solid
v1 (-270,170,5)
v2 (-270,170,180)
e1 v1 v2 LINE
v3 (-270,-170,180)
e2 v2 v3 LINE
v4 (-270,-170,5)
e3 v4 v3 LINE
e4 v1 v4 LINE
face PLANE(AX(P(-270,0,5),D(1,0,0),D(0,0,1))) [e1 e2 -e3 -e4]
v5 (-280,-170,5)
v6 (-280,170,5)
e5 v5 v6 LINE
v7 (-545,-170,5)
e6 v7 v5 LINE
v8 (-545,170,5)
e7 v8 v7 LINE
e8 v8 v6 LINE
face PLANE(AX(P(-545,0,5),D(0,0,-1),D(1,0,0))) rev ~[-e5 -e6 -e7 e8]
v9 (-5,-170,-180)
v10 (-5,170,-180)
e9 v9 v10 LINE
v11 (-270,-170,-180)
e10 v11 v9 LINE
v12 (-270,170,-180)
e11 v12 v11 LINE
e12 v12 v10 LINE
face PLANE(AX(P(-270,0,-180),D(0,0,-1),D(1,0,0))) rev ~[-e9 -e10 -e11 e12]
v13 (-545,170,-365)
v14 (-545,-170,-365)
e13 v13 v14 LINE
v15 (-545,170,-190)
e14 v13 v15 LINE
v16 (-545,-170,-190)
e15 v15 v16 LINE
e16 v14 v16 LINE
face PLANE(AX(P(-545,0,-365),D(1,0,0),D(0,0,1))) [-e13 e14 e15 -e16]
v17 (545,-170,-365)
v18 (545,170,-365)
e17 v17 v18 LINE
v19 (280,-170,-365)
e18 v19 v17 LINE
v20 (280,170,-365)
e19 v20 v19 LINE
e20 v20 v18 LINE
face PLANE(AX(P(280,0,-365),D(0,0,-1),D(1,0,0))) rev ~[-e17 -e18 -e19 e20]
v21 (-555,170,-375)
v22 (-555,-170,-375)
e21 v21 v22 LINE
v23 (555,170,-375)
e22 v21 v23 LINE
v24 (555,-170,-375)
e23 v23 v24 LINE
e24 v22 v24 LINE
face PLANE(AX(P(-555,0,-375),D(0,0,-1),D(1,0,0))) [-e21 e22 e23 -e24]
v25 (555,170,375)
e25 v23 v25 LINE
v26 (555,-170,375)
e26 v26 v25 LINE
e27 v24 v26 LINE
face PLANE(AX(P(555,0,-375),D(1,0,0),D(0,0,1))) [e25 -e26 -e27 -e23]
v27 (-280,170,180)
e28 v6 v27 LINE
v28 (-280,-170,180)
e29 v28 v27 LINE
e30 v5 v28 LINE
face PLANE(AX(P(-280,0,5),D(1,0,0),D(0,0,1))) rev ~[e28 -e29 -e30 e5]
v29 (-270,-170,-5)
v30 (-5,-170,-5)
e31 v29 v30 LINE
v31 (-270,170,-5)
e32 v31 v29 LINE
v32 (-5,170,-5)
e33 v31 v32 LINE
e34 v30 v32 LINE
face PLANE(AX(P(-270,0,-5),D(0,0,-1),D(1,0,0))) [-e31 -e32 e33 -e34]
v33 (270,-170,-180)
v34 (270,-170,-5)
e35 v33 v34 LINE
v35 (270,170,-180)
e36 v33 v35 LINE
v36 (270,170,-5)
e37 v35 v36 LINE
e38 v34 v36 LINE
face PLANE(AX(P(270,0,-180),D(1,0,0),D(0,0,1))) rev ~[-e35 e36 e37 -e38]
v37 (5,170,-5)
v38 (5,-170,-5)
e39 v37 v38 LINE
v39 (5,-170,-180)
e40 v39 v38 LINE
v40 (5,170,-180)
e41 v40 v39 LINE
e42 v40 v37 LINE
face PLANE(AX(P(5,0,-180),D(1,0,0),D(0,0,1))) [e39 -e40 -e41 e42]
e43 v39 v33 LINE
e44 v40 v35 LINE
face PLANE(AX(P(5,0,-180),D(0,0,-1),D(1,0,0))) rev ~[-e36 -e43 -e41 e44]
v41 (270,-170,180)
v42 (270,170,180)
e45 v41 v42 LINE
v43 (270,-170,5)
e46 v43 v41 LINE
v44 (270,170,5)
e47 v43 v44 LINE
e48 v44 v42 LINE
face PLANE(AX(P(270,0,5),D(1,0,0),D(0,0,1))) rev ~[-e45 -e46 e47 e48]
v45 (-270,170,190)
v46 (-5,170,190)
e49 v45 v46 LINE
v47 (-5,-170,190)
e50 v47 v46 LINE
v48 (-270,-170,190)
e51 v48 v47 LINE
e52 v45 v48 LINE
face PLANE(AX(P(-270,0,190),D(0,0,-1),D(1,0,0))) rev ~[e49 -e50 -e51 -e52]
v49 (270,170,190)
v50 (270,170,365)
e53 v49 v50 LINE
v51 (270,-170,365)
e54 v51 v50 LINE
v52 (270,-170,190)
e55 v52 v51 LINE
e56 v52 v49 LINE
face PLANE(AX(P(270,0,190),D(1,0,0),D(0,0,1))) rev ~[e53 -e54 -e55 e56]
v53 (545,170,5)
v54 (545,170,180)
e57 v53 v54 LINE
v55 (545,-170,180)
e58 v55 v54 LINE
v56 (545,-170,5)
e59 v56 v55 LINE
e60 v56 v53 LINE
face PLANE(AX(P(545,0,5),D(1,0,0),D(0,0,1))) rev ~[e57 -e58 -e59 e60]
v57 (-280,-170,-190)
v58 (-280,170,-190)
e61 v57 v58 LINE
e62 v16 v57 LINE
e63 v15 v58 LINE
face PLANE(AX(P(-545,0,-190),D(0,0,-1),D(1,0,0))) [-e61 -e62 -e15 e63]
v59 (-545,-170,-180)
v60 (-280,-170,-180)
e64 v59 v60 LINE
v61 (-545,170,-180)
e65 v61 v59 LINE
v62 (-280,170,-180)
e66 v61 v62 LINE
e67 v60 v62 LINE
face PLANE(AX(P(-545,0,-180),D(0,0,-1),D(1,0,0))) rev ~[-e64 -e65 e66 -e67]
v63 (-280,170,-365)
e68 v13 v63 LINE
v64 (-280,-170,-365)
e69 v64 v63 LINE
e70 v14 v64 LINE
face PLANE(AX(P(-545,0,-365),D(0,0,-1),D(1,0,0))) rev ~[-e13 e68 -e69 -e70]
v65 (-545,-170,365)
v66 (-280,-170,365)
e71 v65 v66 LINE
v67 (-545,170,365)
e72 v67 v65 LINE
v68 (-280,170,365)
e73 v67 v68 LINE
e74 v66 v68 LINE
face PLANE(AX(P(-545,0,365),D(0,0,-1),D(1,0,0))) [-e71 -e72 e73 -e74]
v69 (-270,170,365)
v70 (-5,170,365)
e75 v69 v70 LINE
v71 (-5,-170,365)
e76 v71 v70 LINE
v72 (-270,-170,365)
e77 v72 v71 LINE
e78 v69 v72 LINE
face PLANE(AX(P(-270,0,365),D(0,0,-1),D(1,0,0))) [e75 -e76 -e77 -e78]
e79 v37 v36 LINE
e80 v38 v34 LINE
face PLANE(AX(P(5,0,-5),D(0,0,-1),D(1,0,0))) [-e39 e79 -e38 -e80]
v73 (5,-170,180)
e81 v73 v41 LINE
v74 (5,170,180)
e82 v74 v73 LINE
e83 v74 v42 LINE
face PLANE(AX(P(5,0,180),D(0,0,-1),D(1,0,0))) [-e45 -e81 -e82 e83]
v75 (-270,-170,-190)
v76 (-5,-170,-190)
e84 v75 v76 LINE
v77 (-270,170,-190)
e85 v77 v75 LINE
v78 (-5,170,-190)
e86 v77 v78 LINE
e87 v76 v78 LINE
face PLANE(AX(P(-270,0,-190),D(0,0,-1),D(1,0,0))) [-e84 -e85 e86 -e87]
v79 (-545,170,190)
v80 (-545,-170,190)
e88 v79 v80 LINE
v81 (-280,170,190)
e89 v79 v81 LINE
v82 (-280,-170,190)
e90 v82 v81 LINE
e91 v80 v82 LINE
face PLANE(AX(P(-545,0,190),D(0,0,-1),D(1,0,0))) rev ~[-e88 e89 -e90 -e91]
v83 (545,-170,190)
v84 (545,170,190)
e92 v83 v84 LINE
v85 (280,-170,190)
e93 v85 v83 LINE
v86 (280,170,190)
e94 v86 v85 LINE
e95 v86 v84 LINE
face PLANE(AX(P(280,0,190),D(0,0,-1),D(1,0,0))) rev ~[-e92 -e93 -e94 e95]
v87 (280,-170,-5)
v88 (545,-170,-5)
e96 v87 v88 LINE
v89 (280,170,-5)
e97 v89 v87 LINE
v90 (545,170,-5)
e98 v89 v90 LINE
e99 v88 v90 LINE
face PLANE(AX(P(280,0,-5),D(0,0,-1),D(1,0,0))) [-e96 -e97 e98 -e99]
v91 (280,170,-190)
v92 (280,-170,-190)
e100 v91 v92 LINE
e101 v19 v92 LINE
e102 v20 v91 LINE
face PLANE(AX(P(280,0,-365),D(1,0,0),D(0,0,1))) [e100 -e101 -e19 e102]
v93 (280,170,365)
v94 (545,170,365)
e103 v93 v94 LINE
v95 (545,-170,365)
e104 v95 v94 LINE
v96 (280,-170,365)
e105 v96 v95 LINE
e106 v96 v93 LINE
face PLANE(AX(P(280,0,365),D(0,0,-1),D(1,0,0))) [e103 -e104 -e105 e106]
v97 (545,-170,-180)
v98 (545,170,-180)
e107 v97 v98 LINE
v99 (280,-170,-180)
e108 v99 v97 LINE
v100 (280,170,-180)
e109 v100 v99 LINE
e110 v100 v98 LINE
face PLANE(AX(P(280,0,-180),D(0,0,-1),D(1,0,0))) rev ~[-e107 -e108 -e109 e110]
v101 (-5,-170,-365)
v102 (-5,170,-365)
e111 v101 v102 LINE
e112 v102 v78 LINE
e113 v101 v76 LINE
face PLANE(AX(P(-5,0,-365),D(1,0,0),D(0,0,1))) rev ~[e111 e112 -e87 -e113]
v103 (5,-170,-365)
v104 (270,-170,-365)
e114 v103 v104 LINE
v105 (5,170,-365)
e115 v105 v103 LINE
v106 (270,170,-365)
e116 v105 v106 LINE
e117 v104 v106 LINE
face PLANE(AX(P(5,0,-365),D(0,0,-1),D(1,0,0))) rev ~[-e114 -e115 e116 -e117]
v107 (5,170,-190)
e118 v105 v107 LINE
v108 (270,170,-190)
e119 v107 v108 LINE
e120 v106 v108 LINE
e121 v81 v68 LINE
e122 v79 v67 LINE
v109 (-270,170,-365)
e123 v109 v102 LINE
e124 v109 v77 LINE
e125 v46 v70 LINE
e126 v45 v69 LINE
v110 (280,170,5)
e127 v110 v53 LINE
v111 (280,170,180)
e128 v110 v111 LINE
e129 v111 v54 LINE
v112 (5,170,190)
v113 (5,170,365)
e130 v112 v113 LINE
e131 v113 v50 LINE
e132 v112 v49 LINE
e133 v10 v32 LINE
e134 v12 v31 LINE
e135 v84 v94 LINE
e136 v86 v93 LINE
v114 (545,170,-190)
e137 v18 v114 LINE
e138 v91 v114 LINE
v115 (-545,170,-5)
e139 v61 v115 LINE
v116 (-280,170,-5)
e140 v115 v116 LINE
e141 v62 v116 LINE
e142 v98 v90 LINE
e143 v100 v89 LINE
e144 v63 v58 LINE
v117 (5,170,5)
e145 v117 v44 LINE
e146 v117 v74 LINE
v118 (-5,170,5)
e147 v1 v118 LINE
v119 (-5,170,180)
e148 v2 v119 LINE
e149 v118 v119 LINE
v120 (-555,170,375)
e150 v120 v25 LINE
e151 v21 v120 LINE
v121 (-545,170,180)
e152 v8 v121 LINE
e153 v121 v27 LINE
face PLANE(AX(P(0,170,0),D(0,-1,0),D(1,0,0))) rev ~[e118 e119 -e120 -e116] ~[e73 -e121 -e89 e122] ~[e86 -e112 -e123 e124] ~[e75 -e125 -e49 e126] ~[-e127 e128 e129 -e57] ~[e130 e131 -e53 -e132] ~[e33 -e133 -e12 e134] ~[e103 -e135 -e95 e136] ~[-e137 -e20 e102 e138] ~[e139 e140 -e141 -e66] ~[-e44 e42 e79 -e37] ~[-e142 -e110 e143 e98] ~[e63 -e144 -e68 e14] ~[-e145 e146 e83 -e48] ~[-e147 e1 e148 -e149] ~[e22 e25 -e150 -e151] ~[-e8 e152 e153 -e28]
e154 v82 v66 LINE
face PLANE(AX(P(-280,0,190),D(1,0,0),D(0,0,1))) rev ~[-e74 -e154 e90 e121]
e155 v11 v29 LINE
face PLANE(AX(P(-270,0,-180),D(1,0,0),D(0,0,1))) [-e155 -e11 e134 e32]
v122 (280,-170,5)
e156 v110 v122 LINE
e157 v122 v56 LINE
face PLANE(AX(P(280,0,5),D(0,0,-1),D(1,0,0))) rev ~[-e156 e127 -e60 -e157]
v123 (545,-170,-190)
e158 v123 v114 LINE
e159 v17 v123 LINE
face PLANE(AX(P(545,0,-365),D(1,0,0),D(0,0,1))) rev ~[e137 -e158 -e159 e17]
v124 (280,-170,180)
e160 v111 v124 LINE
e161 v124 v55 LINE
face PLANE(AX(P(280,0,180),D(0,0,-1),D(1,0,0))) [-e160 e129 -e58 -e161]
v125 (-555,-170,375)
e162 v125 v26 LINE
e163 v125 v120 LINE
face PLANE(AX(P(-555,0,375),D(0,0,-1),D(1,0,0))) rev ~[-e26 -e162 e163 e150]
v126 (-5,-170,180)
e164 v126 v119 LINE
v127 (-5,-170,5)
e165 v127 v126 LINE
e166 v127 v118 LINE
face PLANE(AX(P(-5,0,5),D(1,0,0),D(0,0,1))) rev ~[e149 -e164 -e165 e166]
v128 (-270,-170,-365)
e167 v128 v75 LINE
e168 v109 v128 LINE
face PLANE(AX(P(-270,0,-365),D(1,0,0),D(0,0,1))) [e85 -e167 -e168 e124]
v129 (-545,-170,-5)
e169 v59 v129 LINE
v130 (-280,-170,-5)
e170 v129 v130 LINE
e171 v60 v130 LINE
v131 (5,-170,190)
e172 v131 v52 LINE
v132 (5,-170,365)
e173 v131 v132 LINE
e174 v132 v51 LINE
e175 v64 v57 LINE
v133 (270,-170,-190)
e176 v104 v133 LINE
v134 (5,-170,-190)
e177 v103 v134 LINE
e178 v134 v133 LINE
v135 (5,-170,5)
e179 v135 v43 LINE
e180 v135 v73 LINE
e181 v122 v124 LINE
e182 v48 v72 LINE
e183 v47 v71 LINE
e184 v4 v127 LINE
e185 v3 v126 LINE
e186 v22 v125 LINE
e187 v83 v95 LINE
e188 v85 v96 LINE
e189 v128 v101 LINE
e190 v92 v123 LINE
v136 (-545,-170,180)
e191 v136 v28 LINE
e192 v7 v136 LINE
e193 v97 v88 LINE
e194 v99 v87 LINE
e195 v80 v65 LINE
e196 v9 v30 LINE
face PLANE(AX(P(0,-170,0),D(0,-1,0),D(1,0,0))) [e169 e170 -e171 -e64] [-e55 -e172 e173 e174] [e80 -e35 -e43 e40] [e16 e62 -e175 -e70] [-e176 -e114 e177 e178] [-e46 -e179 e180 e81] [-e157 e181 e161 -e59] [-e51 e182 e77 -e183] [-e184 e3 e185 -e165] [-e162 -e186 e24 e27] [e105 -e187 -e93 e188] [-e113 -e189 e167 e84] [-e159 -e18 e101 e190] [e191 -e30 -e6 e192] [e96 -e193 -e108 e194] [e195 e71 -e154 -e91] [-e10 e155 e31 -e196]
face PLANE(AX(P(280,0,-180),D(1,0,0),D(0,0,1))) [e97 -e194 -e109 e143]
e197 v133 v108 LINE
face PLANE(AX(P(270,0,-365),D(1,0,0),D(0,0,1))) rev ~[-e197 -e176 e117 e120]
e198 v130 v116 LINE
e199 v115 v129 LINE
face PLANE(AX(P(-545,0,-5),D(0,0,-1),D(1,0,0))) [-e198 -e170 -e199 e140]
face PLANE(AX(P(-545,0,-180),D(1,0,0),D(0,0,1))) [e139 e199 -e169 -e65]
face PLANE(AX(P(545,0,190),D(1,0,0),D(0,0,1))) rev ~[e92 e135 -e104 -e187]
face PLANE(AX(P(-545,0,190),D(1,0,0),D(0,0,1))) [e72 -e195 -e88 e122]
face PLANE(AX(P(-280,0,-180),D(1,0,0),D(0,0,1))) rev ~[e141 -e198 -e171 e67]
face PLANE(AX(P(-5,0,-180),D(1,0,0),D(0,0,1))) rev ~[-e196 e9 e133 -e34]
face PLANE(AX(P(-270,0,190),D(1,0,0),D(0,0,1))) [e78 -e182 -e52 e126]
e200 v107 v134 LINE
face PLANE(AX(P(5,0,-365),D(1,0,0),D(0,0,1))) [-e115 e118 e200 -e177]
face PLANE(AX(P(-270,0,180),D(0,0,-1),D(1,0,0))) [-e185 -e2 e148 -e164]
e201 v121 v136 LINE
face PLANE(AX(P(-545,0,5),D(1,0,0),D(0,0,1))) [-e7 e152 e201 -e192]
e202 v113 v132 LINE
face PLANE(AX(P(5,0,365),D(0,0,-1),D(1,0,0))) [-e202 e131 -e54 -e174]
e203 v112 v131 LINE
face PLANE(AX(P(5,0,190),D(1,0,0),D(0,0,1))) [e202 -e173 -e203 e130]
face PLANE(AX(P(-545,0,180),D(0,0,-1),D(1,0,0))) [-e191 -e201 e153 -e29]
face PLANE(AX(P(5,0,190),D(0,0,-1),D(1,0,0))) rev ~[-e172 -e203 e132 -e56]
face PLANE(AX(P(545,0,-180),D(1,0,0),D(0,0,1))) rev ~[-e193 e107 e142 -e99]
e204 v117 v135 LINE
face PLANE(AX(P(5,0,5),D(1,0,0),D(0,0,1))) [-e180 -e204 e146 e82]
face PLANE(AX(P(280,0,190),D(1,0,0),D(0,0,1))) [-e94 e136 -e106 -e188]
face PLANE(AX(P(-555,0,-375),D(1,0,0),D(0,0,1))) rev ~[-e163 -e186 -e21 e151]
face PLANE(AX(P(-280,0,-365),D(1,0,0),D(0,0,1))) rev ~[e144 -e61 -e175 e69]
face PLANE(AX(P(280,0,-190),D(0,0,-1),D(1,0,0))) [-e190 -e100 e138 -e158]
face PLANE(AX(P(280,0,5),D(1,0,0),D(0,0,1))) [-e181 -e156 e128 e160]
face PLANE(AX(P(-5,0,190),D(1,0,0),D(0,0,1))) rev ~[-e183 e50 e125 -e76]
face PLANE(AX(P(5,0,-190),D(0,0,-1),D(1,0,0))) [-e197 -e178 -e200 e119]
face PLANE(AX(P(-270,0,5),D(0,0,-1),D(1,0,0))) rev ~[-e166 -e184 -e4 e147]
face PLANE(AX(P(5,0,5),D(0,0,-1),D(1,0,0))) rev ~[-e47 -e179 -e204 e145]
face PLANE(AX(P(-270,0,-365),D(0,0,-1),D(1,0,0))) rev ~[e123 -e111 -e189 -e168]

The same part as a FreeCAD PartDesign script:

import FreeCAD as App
import Part
import Sketcher

V = App.Vector
Q = App.Units.Quantity


def add_polygon(sketch, points):
    """Adds a closed chain of lines whose ends are joined by coincident constraints."""
    first, n = sketch.GeometryCount, len(points)
    for a, b in zip(points, points[1:] + points[:1]):
        sketch.addGeometry(Part.LineSegment(App.Vector(*a, 0), App.Vector(*b, 0)), False)
    for i in range(n):
        sketch.addConstraint(Sketcher.Constraint("Coincident", first + i, 2, first + (i + 1) % n, 1))

doc = App.newDocument("Part")
params = doc.addObject("Spreadsheet::Sheet", "Params")
for row, (alias, value) in enumerate([
    ("sketch1_width", "1110 mm"),
    ("sketch1_width2", "265 mm"),
    ("sketch1_height", "750 mm"),
    ("sketch1_height2", "175 mm"),
    ("pad1_length", "340 mm"),
], start=1):
    params.set(f"A{row}", alias)
    params.set(f"B{row}", "=" + value)
    params.setAlias(f"B{row}", alias)

body = doc.addObject("PartDesign::Body", "Body")

sketch1 = doc.addObject("Sketcher::SketchObject", "Sketch")
body.addObject(sketch1)
sketch1.AttachmentSupport = (doc.XZ_Plane, [""])
sketch1.MapMode = "FlatFace"
add_polygon(sketch1, [(-555, 375), (-555, -375), (555, -375), (555, 375)])
add_polygon(sketch1, [(-280, -365), (-545, -365), (-545, -190), (-280, -190)])
add_polygon(sketch1, [(-5, -365), (-270, -365), (-270, -190), (-5, -190)])
add_polygon(sketch1, [(-280, -180), (-545, -180), (-545, -5), (-280, -5)])
add_polygon(sketch1, [(-5, -180), (-270, -180), (-270, -5), (-5, -5)])
add_polygon(sketch1, [(270, -365), (5, -365), (5, -190), (270, -190)])
add_polygon(sketch1, [(545, -365), (280, -365), (280, -190), (545, -190)])
add_polygon(sketch1, [(270, -180), (5, -180), (5, -5), (270, -5)])
add_polygon(sketch1, [(545, -180), (280, -180), (280, -5), (545, -5)])
add_polygon(sketch1, [(-280, 5), (-545, 5), (-545, 180), (-280, 180)])
add_polygon(sketch1, [(-5, 5), (-270, 5), (-270, 180), (-5, 180)])
add_polygon(sketch1, [(-280, 190), (-545, 190), (-545, 365), (-280, 365)])
add_polygon(sketch1, [(-5, 190), (-270, 190), (-270, 365), (-5, 365)])
add_polygon(sketch1, [(270, 5), (5, 5), (5, 180), (270, 180)])
add_polygon(sketch1, [(545, 5), (280, 5), (280, 180), (545, 180)])
add_polygon(sketch1, [(270, 190), (5, 190), (5, 365), (270, 365)])
add_polygon(sketch1, [(545, 190), (280, 190), (280, 365), (545, 365)])
sketch1.addConstraint([
    Sketcher.Constraint("Vertical", 0),
    Sketcher.Constraint("Horizontal", 1),
    Sketcher.Constraint("Vertical", 2),
    Sketcher.Constraint("Horizontal", 3),
    Sketcher.Constraint("Horizontal", 4),
    Sketcher.Constraint("Vertical", 5),
    Sketcher.Constraint("Horizontal", 6),
    Sketcher.Constraint("Vertical", 7),
    Sketcher.Constraint("Horizontal", 8),
    Sketcher.Constraint("Vertical", 9),
    Sketcher.Constraint("Horizontal", 10),
    Sketcher.Constraint("Vertical", 11),
    Sketcher.Constraint("Horizontal", 12),
    Sketcher.Constraint("Vertical", 13),
    Sketcher.Constraint("Horizontal", 14),
    Sketcher.Constraint("Vertical", 15),
    Sketcher.Constraint("Horizontal", 16),
    Sketcher.Constraint("Vertical", 17),
    Sketcher.Constraint("Horizontal", 18),
    Sketcher.Constraint("Vertical", 19),
    Sketcher.Constraint("Horizontal", 20),
    Sketcher.Constraint("Vertical", 21),
    Sketcher.Constraint("Horizontal", 22),
    Sketcher.Constraint("Vertical", 23),
    Sketcher.Constraint("Horizontal", 24),
    Sketcher.Constraint("Vertical", 25),
    Sketcher.Constraint("Horizontal", 26),
    Sketcher.Constraint("Vertical", 27),
    Sketcher.Constraint("Horizontal", 28),
    Sketcher.Constraint("Vertical", 29),
    Sketcher.Constraint("Horizontal", 30),
    Sketcher.Constraint("Vertical", 31),
    Sketcher.Constraint("Horizontal", 32),
    Sketcher.Constraint("Vertical", 33),
    Sketcher.Constraint("Horizontal", 34),
    Sketcher.Constraint("Vertical", 35),
    Sketcher.Constraint("Horizontal", 36),
    Sketcher.Constraint("Vertical", 37),
    Sketcher.Constraint("Horizontal", 38),
    Sketcher.Constraint("Vertical", 39),
    Sketcher.Constraint("Horizontal", 40),
    Sketcher.Constraint("Vertical", 41),
    Sketcher.Constraint("Horizontal", 42),
    Sketcher.Constraint("Vertical", 43),
    Sketcher.Constraint("Horizontal", 44),
    Sketcher.Constraint("Vertical", 45),
    Sketcher.Constraint("Horizontal", 46),
    Sketcher.Constraint("Vertical", 47),
    Sketcher.Constraint("Horizontal", 48),
    Sketcher.Constraint("Vertical", 49),
    Sketcher.Constraint("Horizontal", 50),
    Sketcher.Constraint("Vertical", 51),
    Sketcher.Constraint("Horizontal", 52),
    Sketcher.Constraint("Vertical", 53),
    Sketcher.Constraint("Horizontal", 54),
    Sketcher.Constraint("Vertical", 55),
    Sketcher.Constraint("Horizontal", 56),
    Sketcher.Constraint("Vertical", 57),
    Sketcher.Constraint("Horizontal", 58),
    Sketcher.Constraint("Vertical", 59),
    Sketcher.Constraint("Horizontal", 60),
    Sketcher.Constraint("Vertical", 61),
    Sketcher.Constraint("Horizontal", 62),
    Sketcher.Constraint("Vertical", 63),
    Sketcher.Constraint("Horizontal", 64),
    Sketcher.Constraint("Vertical", 65),
    Sketcher.Constraint("Horizontal", 66),
    Sketcher.Constraint("Vertical", 67),
    Sketcher.Constraint("Symmetric", 0, 2, 2, 2, -1, 1),
    Sketcher.Constraint("Symmetric", 34, 2, 36, 2, -1, 1),
    Sketcher.Constraint("Symmetric", 32, 2, 38, 2, -1, 1),
    Sketcher.Constraint("Symmetric", 30, 2, 40, 2, -1, 1),
    Sketcher.Constraint("Symmetric", 28, 2, 42, 2, -1, 1),
    Sketcher.Constraint("Symmetric", 26, 2, 44, 2, -1, 1),
    Sketcher.Constraint("Symmetric", 24, 2, 46, 2, -1, 1),
    Sketcher.Constraint("Symmetric", 22, 2, 48, 2, -1, 1),
    Sketcher.Constraint("Symmetric", 20, 2, 50, 2, -1, 1),
    Sketcher.Constraint("Symmetric", 18, 2, 52, 2, -1, 1),
    Sketcher.Constraint("Symmetric", 16, 2, 54, 2, -1, 1),
    Sketcher.Constraint("Symmetric", 14, 2, 56, 2, -1, 1),
    Sketcher.Constraint("Symmetric", 12, 2, 58, 2, -1, 1),
    Sketcher.Constraint("Symmetric", 10, 2, 60, 2, -1, 1),
    Sketcher.Constraint("Symmetric", 8, 2, 62, 2, -1, 1),
    Sketcher.Constraint("Symmetric", 6, 2, 64, 2, -1, 1),
    Sketcher.Constraint("Symmetric", 4, 2, 66, 2, -1, 1),
    Sketcher.Constraint("Symmetric", 11, 2, 20, 2, -2),
    Sketcher.Constraint("Symmetric", 9, 2, 22, 2, -2),
    Sketcher.Constraint("Symmetric", 7, 2, 24, 2, -2),
    Sketcher.Constraint("Symmetric", 5, 2, 26, 2, -2),
    Sketcher.Constraint("Symmetric", 19, 2, 28, 2, -2),
    Sketcher.Constraint("Symmetric", 17, 2, 30, 2, -2),
    Sketcher.Constraint("Symmetric", 15, 2, 32, 2, -2),
    Sketcher.Constraint("Symmetric", 13, 2, 34, 2, -2),
    Sketcher.Constraint("Horizontal", 7, 2, 8, 2),
    Sketcher.Constraint("Horizontal", 6, 2, 9, 2),
    Sketcher.Constraint("Horizontal", 15, 2, 16, 2),
    Sketcher.Constraint("Horizontal", 14, 2, 17, 2),
    Sketcher.Constraint("Vertical", 5, 2, 12, 2),
    Sketcher.Constraint("Vertical", 7, 2, 14, 2),
    Sketcher.Constraint("Vertical", 9, 2, 16, 2),
    Sketcher.Constraint("Vertical", 11, 2, 18, 2),
    Sketcher.Constraint("Equal", 6, 8),
    Sketcher.Constraint("Equal", 11, 13),
    Sketcher.Constraint("DistanceX", 1, 1, 1, 2, Q("1110 mm")),
    Sketcher.Constraint("DistanceX", 4, 2, 4, 1, Q("265 mm")),
    Sketcher.Constraint("DistanceY", 0, 2, 0, 1, Q("750 mm")),
    Sketcher.Constraint("DistanceY", 5, 1, 5, 2, Q("175 mm")),
    Sketcher.Constraint("DistanceX", 4, 2, -1, 1, Q("545 mm")),
    Sketcher.Constraint("DistanceY", 4, 2, -1, 1, Q("365 mm")),
    Sketcher.Constraint("DistanceX", 8, 2, -1, 1, Q("270 mm")),
    Sketcher.Constraint("DistanceY", 12, 2, -1, 1, Q("180 mm")),
])
sketch1.setExpression("Constraints[171]", "Params.sketch1_width")
sketch1.setExpression("Constraints[172]", "Params.sketch1_width2")
sketch1.setExpression("Constraints[173]", "Params.sketch1_height")
sketch1.setExpression("Constraints[174]", "Params.sketch1_height2")
pad1 = doc.addObject("PartDesign::Pad", "Pad")
body.addObject(pad1)
pad1.Profile = sketch1
pad1.setExpression("Length", "Params.pad1_length")
pad1.Midplane = True

doc.recompute()
